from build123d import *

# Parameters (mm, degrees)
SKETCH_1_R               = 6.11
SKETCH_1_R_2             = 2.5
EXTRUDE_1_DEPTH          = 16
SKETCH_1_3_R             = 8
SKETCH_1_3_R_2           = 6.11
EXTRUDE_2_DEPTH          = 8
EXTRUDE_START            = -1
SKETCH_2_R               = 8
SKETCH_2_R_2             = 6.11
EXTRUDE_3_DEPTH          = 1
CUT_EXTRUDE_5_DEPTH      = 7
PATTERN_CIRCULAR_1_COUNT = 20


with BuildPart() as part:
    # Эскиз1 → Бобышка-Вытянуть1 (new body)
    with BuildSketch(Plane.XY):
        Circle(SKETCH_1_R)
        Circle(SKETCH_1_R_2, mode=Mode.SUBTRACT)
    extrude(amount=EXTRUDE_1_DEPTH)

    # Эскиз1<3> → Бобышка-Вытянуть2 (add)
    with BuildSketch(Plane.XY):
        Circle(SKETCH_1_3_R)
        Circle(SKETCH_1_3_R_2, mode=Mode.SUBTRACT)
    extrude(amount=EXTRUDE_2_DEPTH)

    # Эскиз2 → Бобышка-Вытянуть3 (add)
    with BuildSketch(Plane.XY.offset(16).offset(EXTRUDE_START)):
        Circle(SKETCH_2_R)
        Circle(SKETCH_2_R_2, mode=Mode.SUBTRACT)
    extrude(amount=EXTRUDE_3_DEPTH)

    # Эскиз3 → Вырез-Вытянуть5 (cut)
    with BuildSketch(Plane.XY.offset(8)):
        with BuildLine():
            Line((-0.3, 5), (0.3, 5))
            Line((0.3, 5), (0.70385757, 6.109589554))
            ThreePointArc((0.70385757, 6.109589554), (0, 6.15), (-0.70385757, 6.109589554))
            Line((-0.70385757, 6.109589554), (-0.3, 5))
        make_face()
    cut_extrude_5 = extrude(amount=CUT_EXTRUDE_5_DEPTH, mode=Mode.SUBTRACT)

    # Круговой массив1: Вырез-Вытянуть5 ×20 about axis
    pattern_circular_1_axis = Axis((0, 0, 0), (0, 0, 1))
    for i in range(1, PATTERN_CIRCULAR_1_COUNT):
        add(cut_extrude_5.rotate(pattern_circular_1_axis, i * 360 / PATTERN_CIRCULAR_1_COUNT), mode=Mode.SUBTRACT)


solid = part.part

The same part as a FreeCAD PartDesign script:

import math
import FreeCAD as App
import Part
import Sketcher
from FreeCAD import Vector
Q = App.Units.Quantity

doc = App.newDocument("Part")
params = doc.addObject("Spreadsheet::Sheet", "Params")
for row, (alias, value) in enumerate([
    ("sketch1_diameter", "5 mm"),
    ("sketch1_diameter2", "12.22 mm"),
    ("pad1_length", "16 mm"),
    ("sketch2_diameter", "16 mm"),
    ("sketch2_diameter2", "12.22 mm"),
    ("pad2_length", "8 mm"),
    ("sketch3_diameter", "16 mm"),
    ("sketch3_diameter2", "12.22 mm"),
    ("pad3_length", "1 mm"),
    ("sketch4_radius", "6.15 mm"),
    ("sketch4_width", "0.6 mm"),
    ("pocket1_length", "7 mm"),
], start=1):
    params.set(f"A{row}", alias)
    params.set(f"B{row}", "=" + value)
    params.setAlias(f"B{row}", alias)

body = doc.addObject("PartDesign::Body", "Body")

# Sketch on XY plane
sketch1 = body.newObject("Sketcher::SketchObject", "Sketch")
sketch1.AttachmentSupport = (doc.getObject("XY_Plane"), [""])
sketch1.MapMode = "FlatFace"
sketch1.addGeometry([
    Part.Circle(Vector(0, 0, 0), Vector(0, 0, 1), 6.1),
    Part.Circle(Vector(0, 0, 0), Vector(0, 0, 1), 2.5),
], False)
sketch1.addConstraint([
    Sketcher.Constraint("Coincident", 0, 3, -1, 1),
    Sketcher.Constraint("Coincident", 1, 3, -1, 1),
    Sketcher.Constraint("Diameter", 1, 5.0),
    Sketcher.Constraint("Diameter", 0, 12.22),
])
sketch1.setExpression("Constraints[2]", "Params.sketch1_diameter")
sketch1.setExpression("Constraints[3]", "Params.sketch1_diameter2")
pad1 = body.newObject("PartDesign::Pad", "Pad")
pad1.Profile = sketch1
pad1.setExpression("Length", "Params.pad1_length")

# Sketch on XY plane
sketch2 = body.newObject("Sketcher::SketchObject", "Sketch001")
sketch2.AttachmentSupport = (doc.getObject("XY_Plane"), [""])
sketch2.MapMode = "FlatFace"
sketch2.addGeometry([
    Part.Circle(Vector(0, 0, 0), Vector(0, 0, 1), 8),
    Part.Circle(Vector(0, 0, 0), Vector(0, 0, 1), 6),
], False)
sketch2.addConstraint([
    Sketcher.Constraint("Coincident", 0, 3, -1, 1),
    Sketcher.Constraint("Coincident", 1, 3, -1, 1),
    Sketcher.Constraint("Diameter", 0, 16.0),
    Sketcher.Constraint("Diameter", 1, 12.22),
])
sketch2.setExpression("Constraints[2]", "Params.sketch2_diameter")
sketch2.setExpression("Constraints[3]", "Params.sketch2_diameter2")
pad2 = body.newObject("PartDesign::Pad", "Pad001")
pad2.Profile = sketch2
pad2.setExpression("Length", "Params.pad2_length")

# Sketch on XY plane
sketch3 = body.newObject("Sketcher::SketchObject", "Sketch002")
sketch3.AttachmentSupport = (doc.getObject("XY_Plane"), [""])
sketch3.MapMode = "FlatFace"
sketch3.AttachmentOffset = App.Placement(Vector(0, 0, 15), App.Rotation())
sketch3.addGeometry([
    Part.Circle(Vector(0, 0, 0), Vector(0, 0, 1), 8),
    Part.Circle(Vector(0, 0, 0), Vector(0, 0, 1), 6),
], False)
sketch3.addConstraint([
    Sketcher.Constraint("Coincident", 0, 3, -1, 1),
    Sketcher.Constraint("Coincident", 1, 3, -1, 1),
    Sketcher.Constraint("Diameter", 0, 16.0),
    Sketcher.Constraint("Diameter", 1, 12.22),
])
sketch3.setExpression("Constraints[2]", "Params.sketch3_diameter")
sketch3.setExpression("Constraints[3]", "Params.sketch3_diameter2")
pad3 = body.newObject("PartDesign::Pad", "Pad002")
pad3.Profile = sketch3
pad3.setExpression("Length", "Params.pad3_length")

# Sketch on XY plane
sketch4 = body.newObject("Sketcher::SketchObject", "Sketch003")
sketch4.AttachmentSupport = (doc.getObject("XY_Plane"), [""])
sketch4.MapMode = "FlatFace"
sketch4.AttachmentOffset = App.Placement(Vector(0, 0, 8), App.Rotation())
sketch4.addGeometry([
    Part.LineSegment(Vector(-0.3, 5, 0), Vector(0.3, 5, 0)),
    Part.LineSegment(Vector(0.3, 5, 0), Vector(0.7, 6.1, 0)),
    Part.ArcOfCircle(Part.Circle(Vector(0, 0, 0), Vector(0, 0, 1), 6.1), math.radians(83.43), math.radians(96.57)),
    Part.LineSegment(Vector(-0.7, 6.1, 0), Vector(-0.3, 5, 0)),
], False)
sketch4.addConstraint([
    Sketcher.Constraint("Coincident", 0, 2, 1, 1),
    Sketcher.Constraint("Coincident", 1, 2, 2, 1),
    Sketcher.Constraint("Coincident", 2, 2, 3, 1),
    Sketcher.Constraint("Coincident", 3, 2, 0, 1),
    Sketcher.Constraint("Horizontal", 0),
    Sketcher.Constraint("Coincident", 2, 3, -1, 1),
    Sketcher.Constraint("Horizontal", 1, 2, 2, 2),
    Sketcher.Constraint("Equal", 1, 3),
    Sketcher.Constraint("Angle", 1, Q("70 deg")),
    Sketcher.Constraint("Radius", 2, 6.15),
    Sketcher.Constraint("DistanceX", 0, 1, 0, 2, 0.6),
    Sketcher.Constraint("DistanceY", -1, 1, 0, 2, 5.0),
])
sketch4.setExpression("Constraints[9]", "Params.sketch4_radius")
sketch4.setExpression("Constraints[10]", "Params.sketch4_width")
pocket1 = body.newObject("PartDesign::Pocket", "Pocket")
pocket1.Profile = sketch4
pocket1.setExpression("Length", "Params.pocket1_length")
pocket1.Reversed = True
doc.recompute()

polarpattern = body.newObject("PartDesign::PolarPattern", "PolarPattern")
polarpattern.Originals = [pocket1]
polarpattern.Axis = (doc.getObject("Z_Axis"), [""])
polarpattern.Angle = 360
polarpattern.Occurrences = 20
body.Tip = polarpattern

doc.recompute()
